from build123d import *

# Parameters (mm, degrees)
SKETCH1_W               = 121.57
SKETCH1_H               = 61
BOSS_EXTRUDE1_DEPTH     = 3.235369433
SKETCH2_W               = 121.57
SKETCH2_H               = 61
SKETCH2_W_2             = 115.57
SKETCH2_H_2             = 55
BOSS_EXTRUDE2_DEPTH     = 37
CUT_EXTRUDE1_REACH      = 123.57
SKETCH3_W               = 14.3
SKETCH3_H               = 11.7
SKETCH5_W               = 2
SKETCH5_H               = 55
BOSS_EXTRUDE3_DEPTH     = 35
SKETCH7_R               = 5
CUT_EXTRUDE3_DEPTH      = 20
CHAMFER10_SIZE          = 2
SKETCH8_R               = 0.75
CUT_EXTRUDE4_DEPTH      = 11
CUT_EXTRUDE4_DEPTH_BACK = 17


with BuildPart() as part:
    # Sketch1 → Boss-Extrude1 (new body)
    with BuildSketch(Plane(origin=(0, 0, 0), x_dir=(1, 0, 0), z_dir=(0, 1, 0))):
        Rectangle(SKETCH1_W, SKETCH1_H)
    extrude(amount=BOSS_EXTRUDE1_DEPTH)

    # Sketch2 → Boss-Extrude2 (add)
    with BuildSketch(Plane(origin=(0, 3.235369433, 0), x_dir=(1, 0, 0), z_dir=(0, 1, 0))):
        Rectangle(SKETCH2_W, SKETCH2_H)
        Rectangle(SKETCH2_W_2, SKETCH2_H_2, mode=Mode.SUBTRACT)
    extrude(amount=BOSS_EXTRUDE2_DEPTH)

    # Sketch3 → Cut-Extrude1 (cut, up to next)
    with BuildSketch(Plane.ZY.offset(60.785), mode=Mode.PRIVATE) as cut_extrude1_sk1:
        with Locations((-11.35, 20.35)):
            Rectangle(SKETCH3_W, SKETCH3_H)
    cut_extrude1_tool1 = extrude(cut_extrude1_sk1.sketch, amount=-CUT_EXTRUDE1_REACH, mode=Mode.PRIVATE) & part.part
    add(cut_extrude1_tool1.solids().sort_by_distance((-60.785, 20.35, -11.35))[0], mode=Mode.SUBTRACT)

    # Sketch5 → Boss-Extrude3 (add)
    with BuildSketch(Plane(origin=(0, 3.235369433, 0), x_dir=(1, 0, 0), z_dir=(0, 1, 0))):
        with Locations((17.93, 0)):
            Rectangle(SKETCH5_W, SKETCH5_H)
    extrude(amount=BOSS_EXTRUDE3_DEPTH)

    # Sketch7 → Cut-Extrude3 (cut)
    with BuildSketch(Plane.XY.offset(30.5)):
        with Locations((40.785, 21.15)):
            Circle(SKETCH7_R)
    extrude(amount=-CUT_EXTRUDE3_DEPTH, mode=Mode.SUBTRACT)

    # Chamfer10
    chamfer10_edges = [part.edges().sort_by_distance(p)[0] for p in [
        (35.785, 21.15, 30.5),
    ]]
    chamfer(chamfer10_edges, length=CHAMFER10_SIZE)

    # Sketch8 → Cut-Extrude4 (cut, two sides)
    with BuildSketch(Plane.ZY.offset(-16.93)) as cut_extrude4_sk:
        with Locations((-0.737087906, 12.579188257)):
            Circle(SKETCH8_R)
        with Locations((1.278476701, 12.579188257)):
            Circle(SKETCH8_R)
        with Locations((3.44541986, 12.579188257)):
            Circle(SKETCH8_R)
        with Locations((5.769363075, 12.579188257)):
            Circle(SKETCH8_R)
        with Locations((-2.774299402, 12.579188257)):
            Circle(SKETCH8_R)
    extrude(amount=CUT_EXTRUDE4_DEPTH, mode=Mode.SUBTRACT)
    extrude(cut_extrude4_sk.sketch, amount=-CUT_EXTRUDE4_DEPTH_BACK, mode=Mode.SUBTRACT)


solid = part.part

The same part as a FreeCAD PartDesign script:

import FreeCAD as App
import Part
import Sketcher
from FreeCAD import Vector


def edges_at(feature, points):
    """Names of the edges that pass closest to the given points."""
    edges = feature.Shape.Edges
    near = lambda p: min(range(len(edges)), key=lambda i: edges[i].distToShape(Part.Vertex(*p))[0])
    return sorted({f"Edge{near(p) + 1}" for p in points})


def add_polygon(sketch, points):
    """Adds a closed chain of lines whose ends are joined by coincident constraints."""
    first, n = sketch.GeometryCount, len(points)
    for a, b in zip(points, points[1:] + points[:1]):
        sketch.addGeometry(Part.LineSegment(App.Vector(*a, 0), App.Vector(*b, 0)), False)
    for i in range(n):
        sketch.addConstraint(Sketcher.Constraint("Coincident", first + i, 2, first + (i + 1) % n, 1))

doc = App.newDocument("Part")
body = doc.addObject("PartDesign::Body", "Body")

sketch1 = body.newObject("Sketcher::SketchObject", "Sketch")
sketch1.AttachmentSupport = (doc.getObject("XZ_Plane"), [""])
sketch1.MapMode = "FlatFace"
add_polygon(sketch1, [(-60.785, -30.5), (-60.785, 30.5), (60.785, 30.5), (60.785, -30.5)])
sketch1.addConstraint([
    Sketcher.Constraint("Vertical", 0),
    Sketcher.Constraint("Horizontal", 1),
    Sketcher.Constraint("Vertical", 2),
    Sketcher.Constraint("Horizontal", 3),
    Sketcher.Constraint("Symmetric", 0, 2, 2, 2, -1, 1),
    Sketcher.Constraint("DistanceY", 0, 1, 0, 2, 61.0),
    Sketcher.Constraint("DistanceX", 1, 1, 1, 2, 121.57),
])
pad1 = body.newObject("PartDesign::Pad", "Pad")
pad1.Profile = sketch1
pad1.Length = 3.235369
pad1.Reversed = True

sketch2 = body.newObject("Sketcher::SketchObject", "Sketch001")
sketch2.AttachmentSupport = (doc.getObject("XZ_Plane"), [""])
sketch2.MapMode = "FlatFace"
sketch2.AttachmentOffset = App.Placement(Vector(0, 0, -3.235369), App.Rotation())
add_polygon(sketch2, [(-60.785, -30.5), (-60.785, 30.5), (60.785, 30.5), (60.785, -30.5)])
add_polygon(sketch2, [(57.785, 27.5), (-57.785, 27.5), (-57.785, -27.5), (57.785, -27.5)])
sketch2.addConstraint([
    Sketcher.Constraint("Vertical", 0),
    Sketcher.Constraint("Horizontal", 1),
    Sketcher.Constraint("Vertical", 2),
    Sketcher.Constraint("Horizontal", 3),
    Sketcher.Constraint("Horizontal", 4),
    Sketcher.Constraint("Vertical", 5),
    Sketcher.Constraint("Horizontal", 6),
    Sketcher.Constraint("Vertical", 7),
    Sketcher.Constraint("Symmetric", 0, 2, 2, 2, -1, 1),
    Sketcher.Constraint("Symmetric", 4, 2, 6, 2, -1, 1),
    Sketcher.Constraint("DistanceY", 0, 1, 0, 2, 61.0),
    Sketcher.Constraint("DistanceY", 5, 2, 5, 1, 55.0),
    Sketcher.Constraint("DistanceX", 0, 2, 4, 2, 3.0),
    Sketcher.Constraint("DistanceX", 1, 1, 1, 2, 121.57),
])
pad2 = body.newObject("PartDesign::Pad", "Pad001")
pad2.Profile = sketch2
pad2.Length = 37
pad2.Reversed = True

sketch3 = body.newObject("Sketcher::SketchObject", "Sketch002")
sketch3.AttachmentSupport = (doc.getObject("YZ_Plane"), [""])
sketch3.MapMode = "FlatFace"
sketch3.AttachmentOffset = App.Placement(Vector(0, 0, -60.785), App.Rotation())
add_polygon(sketch3, [(26.2, -18.5), (14.5, -18.5), (14.5, -4.2), (26.2, -4.2)])
sketch3.addConstraint([
    Sketcher.Constraint("Horizontal", 0),
    Sketcher.Constraint("Vertical", 1),
    Sketcher.Constraint("Horizontal", 2),
    Sketcher.Constraint("Vertical", 3),
    Sketcher.Constraint("DistanceX", 0, 2, 0, 1, 11.7),
    Sketcher.Constraint("DistanceY", 1, 1, 1, 2, 14.3),
    Sketcher.Constraint("DistanceX", -1, 1, 0, 2, 14.5),
    Sketcher.Constraint("DistanceY", 0, 2, -1, 1, 18.5),
])
pocket1 = body.newObject("PartDesign::Pocket", "Pocket")
pocket1.Profile = sketch3
pocket1.Type = "UpToFirst"
pocket1.Reversed = True

sketch4 = body.newObject("Sketcher::SketchObject", "Sketch003")
sketch4.AttachmentSupport = (doc.getObject("XZ_Plane"), [""])
sketch4.MapMode = "FlatFace"
sketch4.AttachmentOffset = App.Placement(Vector(0, 0, -3.235369), App.Rotation())
add_polygon(sketch4, [(16.93, -27.5), (16.93, 27.5), (18.93, 27.5), (18.93, -27.5)])
sketch4.addConstraint([
    Sketcher.Constraint("Vertical", 0),
    Sketcher.Constraint("Horizontal", 1),
    Sketcher.Constraint("Vertical", 2),
    Sketcher.Constraint("Horizontal", 3),
    Sketcher.Constraint("DistanceX", 1, 1, 1, 2, 2.0),
    Sketcher.Constraint("DistanceY", 0, 1, 0, 2, 55.0),
    Sketcher.Constraint("DistanceY", -1, 1, 0, 2, 27.5),
    Sketcher.Constraint("DistanceX", -1, 1, 0, 2, 16.93),
])
pad3 = body.newObject("PartDesign::Pad", "Pad002")
pad3.Profile = sketch4
pad3.Length = 35
pad3.Reversed = True

sketch5 = body.newObject("Sketcher::SketchObject", "Sketch004")
sketch5.AttachmentSupport = (doc.getObject("XY_Plane"), [""])
sketch5.MapMode = "FlatFace"
sketch5.AttachmentOffset = App.Placement(Vector(0, 0, 30.5), App.Rotation())
sketch5.addGeometry(Part.Circle(Vector(40.785, 21.15, 0), Vector(0, 0, 1), 5), False)
sketch5.addConstraint([
    Sketcher.Constraint("Diameter", 0, 10.0),
    Sketcher.Constraint("DistanceY", -1, 1, 0, 3, 21.15),
    Sketcher.Constraint("DistanceX", -1, 1, 0, 3, 40.785),
])
pocket2 = body.newObject("PartDesign::Pocket", "Pocket001")
pocket2.Profile = sketch5
pocket2.Length = 20
doc.recompute()

chamfer = body.newObject("PartDesign::Chamfer", "Chamfer")
chamfer.Base = (pocket2, edges_at(pocket2, [(35.785, 21.15, 30.5)]))
chamfer.Size = 2

sketch6 = body.newObject("Sketcher::SketchObject", "Sketch005")
sketch6.AttachmentSupport = (doc.getObject("YZ_Plane"), [""])
sketch6.MapMode = "FlatFace"
sketch6.AttachmentOffset = App.Placement(Vector(0, 0, 16.93), App.Rotation())
sketch6.addGeometry([
    Part.Circle(Vector(12.579188, -0.737088, 0), Vector(0, 0, 1), 0.75),
    Part.Circle(Vector(12.579188, 1.278477, 0), Vector(0, 0, 1), 0.75),
    Part.Circle(Vector(12.579188, 3.44542, 0), Vector(0, 0, 1), 0.75),
    Part.Circle(Vector(12.579188, 5.769363, 0), Vector(0, 0, 1), 0.75),
    Part.Circle(Vector(12.579188, -2.774299, 0), Vector(0, 0, 1), 0.75),
], False)
sketch6.addConstraint([
    Sketcher.Constraint("Equal", 0, 1),
    Sketcher.Constraint("Equal", 1, 2),
    Sketcher.Constraint("Equal", 2, 3),
    Sketcher.Constraint("Equal", 3, 4),
    Sketcher.Constraint("Vertical", 0, 3, 1, 3),
    Sketcher.Constraint("Vertical", 1, 3, 2, 3),
    Sketcher.Constraint("Vertical", 2, 3, 3, 3),
    Sketcher.Constraint("Vertical", 3, 3, 4, 3),
    Sketcher.Constraint("Diameter", 0, 1.5),
    Sketcher.Constraint("DistanceY", 4, 3, -1, 1, 2.774299),
    Sketcher.Constraint("DistanceX", -1, 1, 0, 3, 12.579188),
    Sketcher.Constraint("DistanceY", -1, 1, 2, 3, 3.44542),
    Sketcher.Constraint("DistanceY", 0, 3, 3, 3, 6.506451),
    Sketcher.Constraint("DistanceY", 4, 3, 0, 3, 2.037211),
    Sketcher.Constraint("DistanceY", -1, 1, 1, 3, 1.278477),
])
pocket3 = body.newObject("PartDesign::Pocket", "Pocket002")
pocket3.Profile = sketch6
pocket3.Type = "TwoLengths"
pocket3.Length = 11
pocket3.Length2 = 17

doc.recompute()
